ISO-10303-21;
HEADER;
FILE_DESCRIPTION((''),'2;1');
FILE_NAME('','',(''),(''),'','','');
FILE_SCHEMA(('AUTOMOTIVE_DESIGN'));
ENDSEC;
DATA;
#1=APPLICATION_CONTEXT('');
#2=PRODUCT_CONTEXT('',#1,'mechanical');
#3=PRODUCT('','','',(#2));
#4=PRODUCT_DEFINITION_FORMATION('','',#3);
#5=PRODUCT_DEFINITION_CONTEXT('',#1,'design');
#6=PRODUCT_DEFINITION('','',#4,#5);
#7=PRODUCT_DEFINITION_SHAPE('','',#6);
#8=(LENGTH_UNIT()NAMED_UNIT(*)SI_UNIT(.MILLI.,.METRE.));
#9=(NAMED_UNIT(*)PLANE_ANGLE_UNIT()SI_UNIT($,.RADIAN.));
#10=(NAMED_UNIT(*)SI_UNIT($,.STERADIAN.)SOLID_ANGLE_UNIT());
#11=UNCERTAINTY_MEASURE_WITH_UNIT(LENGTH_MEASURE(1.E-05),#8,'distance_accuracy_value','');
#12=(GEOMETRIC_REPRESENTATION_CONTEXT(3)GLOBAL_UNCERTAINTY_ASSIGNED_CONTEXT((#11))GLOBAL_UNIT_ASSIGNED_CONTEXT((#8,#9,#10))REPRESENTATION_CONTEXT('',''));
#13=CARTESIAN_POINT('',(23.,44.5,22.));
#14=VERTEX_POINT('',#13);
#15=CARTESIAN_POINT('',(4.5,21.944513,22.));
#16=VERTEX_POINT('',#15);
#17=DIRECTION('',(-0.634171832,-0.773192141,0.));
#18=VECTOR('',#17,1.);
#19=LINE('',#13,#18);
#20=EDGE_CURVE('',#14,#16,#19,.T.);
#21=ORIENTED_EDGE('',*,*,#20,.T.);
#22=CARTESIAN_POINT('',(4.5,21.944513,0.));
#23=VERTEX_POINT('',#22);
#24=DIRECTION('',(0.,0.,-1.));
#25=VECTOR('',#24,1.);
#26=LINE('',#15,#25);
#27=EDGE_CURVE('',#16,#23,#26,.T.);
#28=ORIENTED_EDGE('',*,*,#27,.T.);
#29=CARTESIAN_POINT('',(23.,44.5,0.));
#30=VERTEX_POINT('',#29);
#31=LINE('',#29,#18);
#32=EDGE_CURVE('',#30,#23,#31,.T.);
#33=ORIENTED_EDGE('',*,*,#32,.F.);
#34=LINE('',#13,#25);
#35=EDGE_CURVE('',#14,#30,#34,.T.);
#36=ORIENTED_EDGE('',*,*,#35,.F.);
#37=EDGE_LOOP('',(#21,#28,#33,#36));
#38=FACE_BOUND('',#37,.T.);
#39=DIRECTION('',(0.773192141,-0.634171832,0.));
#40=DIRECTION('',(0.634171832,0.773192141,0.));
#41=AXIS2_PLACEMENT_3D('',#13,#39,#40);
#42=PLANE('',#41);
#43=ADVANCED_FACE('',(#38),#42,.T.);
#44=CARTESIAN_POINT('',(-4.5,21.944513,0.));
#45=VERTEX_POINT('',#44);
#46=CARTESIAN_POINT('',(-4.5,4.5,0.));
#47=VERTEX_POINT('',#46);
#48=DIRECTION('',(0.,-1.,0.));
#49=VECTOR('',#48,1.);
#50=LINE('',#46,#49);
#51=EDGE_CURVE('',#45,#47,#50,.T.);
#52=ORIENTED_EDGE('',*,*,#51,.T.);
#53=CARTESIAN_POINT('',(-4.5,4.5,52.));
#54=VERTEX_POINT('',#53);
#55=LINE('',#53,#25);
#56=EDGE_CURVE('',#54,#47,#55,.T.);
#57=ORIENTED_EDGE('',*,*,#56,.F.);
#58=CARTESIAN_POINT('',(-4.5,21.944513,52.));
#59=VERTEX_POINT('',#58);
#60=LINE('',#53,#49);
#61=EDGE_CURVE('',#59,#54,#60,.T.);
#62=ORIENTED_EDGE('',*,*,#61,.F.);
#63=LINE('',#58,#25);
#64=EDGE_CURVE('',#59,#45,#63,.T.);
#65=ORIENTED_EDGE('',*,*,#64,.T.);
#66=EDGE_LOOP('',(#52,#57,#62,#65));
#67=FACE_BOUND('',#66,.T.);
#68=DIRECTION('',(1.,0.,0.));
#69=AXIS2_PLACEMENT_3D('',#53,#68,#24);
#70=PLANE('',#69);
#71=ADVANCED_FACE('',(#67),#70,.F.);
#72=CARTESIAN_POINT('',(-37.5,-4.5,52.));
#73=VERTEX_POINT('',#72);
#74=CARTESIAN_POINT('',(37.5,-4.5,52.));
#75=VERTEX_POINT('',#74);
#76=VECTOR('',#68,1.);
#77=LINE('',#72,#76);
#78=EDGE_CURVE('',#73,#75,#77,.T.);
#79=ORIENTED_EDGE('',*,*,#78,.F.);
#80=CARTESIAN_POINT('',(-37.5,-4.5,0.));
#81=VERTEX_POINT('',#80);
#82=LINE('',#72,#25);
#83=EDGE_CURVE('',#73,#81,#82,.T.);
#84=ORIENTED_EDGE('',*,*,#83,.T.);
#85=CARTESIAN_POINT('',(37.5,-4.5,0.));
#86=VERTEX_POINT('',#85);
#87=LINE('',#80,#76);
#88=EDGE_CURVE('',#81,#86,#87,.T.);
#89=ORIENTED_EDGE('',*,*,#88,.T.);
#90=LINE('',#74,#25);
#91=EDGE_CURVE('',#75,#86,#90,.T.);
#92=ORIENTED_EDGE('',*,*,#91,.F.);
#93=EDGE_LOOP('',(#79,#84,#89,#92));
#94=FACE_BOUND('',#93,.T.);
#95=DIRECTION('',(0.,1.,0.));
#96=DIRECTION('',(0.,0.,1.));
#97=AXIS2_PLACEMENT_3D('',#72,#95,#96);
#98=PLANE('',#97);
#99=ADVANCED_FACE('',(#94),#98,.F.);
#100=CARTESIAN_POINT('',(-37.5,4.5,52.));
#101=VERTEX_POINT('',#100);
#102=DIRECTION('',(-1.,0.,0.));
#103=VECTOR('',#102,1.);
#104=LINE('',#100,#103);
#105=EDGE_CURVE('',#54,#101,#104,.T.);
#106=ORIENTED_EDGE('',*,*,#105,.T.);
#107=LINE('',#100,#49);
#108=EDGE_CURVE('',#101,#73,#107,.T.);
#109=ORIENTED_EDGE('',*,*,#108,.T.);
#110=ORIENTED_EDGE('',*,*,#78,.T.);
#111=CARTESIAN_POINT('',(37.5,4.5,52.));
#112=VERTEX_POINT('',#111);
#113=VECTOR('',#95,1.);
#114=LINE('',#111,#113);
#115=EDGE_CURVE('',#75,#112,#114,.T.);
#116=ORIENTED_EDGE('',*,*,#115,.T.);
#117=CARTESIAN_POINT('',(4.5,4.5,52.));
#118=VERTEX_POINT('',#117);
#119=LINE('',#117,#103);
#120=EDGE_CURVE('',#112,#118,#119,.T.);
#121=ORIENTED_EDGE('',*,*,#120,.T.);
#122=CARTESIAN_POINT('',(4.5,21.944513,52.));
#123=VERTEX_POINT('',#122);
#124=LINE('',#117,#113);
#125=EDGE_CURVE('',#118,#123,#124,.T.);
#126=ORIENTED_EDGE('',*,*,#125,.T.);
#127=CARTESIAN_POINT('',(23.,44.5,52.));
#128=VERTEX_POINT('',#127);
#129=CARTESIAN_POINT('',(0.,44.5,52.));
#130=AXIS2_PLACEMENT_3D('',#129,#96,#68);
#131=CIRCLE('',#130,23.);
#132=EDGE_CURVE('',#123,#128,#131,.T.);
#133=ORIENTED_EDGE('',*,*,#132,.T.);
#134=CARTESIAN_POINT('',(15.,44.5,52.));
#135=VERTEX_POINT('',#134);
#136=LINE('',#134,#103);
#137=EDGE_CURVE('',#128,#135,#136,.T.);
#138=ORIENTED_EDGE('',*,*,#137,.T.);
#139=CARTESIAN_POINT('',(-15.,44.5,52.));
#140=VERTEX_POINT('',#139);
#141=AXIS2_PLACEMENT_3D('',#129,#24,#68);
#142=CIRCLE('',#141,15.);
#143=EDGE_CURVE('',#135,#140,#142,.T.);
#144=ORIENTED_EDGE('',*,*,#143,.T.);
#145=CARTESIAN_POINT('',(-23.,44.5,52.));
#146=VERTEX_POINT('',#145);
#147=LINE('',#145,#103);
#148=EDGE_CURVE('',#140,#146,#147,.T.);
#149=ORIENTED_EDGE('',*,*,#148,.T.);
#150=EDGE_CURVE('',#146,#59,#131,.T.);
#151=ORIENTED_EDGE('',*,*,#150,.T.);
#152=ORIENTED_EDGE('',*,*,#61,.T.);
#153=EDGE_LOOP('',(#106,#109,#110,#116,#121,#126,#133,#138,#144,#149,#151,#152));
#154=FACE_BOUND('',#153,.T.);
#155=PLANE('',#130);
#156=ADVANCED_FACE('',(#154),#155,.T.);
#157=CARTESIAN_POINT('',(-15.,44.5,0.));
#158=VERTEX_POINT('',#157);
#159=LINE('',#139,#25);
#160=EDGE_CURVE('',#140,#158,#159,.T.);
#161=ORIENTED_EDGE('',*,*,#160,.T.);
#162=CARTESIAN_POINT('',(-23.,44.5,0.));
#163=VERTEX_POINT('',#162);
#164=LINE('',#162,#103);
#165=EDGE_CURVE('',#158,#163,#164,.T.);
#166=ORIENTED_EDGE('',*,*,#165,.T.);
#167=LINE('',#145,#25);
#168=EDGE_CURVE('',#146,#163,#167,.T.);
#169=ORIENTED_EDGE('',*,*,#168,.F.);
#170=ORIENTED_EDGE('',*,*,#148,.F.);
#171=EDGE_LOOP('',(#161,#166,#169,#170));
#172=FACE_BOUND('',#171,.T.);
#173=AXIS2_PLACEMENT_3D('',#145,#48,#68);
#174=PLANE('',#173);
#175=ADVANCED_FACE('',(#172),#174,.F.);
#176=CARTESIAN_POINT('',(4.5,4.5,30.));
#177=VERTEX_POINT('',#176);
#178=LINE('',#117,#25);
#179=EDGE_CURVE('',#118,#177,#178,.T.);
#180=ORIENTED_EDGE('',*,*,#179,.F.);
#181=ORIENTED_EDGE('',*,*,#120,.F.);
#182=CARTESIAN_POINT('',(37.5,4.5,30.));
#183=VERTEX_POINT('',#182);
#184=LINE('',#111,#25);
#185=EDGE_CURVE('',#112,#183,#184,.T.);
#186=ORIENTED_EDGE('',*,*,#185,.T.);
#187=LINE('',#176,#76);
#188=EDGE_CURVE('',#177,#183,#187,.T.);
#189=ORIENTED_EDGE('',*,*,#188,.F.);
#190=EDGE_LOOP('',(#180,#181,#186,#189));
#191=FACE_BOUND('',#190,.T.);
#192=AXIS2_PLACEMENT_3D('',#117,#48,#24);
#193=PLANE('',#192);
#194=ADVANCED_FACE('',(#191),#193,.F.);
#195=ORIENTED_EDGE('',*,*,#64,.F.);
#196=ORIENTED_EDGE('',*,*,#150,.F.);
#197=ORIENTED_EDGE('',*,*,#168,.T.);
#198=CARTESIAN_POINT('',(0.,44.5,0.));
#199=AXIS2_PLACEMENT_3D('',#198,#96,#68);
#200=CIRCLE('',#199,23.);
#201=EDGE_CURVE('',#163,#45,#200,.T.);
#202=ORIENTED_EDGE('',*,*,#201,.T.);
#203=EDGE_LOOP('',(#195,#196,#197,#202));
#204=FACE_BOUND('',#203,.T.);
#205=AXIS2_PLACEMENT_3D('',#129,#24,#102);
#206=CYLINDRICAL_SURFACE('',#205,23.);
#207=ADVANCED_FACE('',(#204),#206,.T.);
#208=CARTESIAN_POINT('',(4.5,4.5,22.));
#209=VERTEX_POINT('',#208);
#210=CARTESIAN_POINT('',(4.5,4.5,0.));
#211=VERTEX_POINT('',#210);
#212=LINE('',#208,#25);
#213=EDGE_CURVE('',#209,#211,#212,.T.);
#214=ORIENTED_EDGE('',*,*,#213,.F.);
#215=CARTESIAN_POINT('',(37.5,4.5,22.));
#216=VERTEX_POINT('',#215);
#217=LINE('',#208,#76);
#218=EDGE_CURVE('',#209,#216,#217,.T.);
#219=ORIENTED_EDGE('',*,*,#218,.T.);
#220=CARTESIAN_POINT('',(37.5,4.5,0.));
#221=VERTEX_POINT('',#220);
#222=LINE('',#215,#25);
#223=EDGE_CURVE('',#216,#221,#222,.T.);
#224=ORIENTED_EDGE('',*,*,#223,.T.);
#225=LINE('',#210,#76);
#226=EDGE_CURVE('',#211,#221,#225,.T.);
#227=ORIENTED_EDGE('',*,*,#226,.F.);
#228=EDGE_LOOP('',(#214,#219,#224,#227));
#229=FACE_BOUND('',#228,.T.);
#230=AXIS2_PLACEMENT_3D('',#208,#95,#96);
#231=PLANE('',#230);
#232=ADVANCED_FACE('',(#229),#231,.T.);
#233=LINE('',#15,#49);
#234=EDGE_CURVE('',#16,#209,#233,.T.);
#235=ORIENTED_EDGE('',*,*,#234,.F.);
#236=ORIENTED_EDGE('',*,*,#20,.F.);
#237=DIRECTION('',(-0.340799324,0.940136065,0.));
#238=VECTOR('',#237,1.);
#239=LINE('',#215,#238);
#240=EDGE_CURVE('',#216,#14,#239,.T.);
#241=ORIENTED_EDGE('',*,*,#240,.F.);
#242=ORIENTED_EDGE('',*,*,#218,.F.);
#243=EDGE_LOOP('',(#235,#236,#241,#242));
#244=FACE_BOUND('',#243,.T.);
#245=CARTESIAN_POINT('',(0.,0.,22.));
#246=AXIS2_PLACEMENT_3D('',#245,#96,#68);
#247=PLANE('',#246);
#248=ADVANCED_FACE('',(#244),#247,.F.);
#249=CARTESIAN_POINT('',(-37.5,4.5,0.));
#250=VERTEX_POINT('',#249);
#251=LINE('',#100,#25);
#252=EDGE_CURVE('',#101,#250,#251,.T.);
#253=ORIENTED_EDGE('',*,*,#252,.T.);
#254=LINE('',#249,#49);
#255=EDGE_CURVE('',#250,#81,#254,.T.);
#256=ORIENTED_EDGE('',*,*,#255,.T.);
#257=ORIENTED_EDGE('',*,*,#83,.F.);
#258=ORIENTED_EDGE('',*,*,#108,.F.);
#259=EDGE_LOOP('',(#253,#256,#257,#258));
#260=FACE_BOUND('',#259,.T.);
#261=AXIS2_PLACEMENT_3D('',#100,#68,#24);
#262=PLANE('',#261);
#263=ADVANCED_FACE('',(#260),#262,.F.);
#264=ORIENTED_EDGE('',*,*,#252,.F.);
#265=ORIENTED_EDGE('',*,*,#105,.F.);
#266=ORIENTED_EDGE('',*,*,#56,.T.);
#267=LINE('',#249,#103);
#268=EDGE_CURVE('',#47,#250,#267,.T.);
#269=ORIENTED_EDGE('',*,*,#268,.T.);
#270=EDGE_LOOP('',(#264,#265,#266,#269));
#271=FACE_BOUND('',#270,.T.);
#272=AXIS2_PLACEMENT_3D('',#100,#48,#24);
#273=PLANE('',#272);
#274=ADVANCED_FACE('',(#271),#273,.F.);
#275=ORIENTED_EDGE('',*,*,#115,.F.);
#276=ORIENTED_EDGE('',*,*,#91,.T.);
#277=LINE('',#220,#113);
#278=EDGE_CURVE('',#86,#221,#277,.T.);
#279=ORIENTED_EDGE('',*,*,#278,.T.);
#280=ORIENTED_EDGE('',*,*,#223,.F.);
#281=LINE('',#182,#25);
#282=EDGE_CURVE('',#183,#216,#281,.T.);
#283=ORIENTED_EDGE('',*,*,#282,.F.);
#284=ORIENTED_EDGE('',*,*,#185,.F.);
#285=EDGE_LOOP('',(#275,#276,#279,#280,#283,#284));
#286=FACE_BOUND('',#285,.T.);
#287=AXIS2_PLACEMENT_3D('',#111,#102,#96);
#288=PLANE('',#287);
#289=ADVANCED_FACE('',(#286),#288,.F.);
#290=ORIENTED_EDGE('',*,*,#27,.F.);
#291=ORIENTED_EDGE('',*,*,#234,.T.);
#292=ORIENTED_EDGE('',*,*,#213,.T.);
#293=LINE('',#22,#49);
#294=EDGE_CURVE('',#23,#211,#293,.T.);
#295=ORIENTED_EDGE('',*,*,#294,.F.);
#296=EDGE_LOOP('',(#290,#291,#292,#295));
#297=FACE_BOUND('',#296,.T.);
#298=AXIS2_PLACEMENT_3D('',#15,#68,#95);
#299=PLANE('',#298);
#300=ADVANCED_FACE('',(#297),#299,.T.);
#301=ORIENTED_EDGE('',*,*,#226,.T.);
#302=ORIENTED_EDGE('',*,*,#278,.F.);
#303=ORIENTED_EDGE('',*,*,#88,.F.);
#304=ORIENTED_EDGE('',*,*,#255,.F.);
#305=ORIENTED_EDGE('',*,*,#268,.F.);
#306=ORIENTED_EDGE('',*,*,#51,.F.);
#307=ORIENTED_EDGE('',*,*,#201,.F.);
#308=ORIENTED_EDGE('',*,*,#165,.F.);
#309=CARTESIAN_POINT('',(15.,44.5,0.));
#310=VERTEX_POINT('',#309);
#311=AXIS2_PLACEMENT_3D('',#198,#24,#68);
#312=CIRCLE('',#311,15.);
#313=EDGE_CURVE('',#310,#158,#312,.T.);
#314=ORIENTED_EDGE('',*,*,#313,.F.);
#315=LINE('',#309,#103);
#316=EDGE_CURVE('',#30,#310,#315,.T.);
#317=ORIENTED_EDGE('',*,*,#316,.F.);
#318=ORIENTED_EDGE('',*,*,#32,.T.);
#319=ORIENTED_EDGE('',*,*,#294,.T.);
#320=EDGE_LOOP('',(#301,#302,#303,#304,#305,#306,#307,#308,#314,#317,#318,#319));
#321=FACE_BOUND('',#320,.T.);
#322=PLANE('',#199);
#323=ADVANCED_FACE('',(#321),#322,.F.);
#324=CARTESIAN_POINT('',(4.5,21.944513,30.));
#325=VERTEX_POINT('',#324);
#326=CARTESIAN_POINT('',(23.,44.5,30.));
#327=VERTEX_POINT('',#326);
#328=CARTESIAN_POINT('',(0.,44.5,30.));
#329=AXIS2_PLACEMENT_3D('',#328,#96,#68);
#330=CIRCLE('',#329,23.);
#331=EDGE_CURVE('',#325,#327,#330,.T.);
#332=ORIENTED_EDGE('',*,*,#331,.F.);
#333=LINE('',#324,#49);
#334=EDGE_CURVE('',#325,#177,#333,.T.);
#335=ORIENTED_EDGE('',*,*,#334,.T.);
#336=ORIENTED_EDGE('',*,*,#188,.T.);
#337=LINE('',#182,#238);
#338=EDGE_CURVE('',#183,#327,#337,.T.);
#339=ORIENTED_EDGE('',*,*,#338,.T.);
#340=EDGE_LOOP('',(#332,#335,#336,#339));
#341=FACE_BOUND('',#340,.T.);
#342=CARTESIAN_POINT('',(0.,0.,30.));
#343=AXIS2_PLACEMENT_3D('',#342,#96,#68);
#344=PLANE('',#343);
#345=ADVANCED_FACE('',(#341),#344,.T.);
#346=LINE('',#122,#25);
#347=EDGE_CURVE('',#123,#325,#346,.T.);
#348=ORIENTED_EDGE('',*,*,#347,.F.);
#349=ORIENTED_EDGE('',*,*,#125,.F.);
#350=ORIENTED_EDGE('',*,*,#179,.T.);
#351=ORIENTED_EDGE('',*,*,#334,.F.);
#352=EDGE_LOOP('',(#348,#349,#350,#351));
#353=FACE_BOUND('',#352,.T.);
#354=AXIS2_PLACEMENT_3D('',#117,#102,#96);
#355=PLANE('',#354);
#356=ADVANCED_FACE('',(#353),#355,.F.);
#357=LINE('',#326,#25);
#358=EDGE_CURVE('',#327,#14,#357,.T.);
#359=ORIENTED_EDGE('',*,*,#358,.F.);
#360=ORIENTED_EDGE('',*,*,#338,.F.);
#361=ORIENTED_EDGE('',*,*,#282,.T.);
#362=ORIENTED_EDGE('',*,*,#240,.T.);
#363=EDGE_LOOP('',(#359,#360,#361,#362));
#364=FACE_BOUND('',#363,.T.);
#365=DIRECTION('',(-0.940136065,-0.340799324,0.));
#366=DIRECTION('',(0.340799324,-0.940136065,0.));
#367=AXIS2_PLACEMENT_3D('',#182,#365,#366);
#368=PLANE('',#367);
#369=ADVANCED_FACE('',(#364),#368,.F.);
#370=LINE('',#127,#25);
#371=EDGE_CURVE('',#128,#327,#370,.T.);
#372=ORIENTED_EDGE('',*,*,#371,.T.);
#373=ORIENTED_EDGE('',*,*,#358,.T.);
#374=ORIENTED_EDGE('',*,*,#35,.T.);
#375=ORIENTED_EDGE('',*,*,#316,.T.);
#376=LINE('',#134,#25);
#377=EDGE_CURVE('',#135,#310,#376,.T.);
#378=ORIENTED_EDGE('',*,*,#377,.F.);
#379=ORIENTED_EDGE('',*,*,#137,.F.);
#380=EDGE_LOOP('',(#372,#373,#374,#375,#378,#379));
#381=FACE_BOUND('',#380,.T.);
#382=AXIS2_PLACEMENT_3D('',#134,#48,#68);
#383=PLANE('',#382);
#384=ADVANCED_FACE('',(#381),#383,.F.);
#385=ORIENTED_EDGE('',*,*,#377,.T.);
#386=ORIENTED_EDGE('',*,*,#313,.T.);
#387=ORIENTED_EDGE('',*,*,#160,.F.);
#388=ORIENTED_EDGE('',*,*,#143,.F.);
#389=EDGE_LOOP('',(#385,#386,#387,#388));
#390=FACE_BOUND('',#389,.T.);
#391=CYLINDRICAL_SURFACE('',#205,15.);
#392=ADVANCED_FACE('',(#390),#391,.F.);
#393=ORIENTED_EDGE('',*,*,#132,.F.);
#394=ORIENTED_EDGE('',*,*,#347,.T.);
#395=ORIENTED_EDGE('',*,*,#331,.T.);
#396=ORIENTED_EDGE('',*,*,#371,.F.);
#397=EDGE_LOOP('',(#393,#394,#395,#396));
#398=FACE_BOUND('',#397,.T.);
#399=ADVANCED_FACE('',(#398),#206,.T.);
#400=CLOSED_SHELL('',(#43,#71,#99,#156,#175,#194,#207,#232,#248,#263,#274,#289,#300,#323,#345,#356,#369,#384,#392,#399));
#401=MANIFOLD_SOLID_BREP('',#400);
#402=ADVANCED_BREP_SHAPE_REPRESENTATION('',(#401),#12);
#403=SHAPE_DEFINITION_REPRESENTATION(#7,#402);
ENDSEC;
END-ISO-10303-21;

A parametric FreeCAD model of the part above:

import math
import FreeCAD as App
import Part
import Sketcher
from FreeCAD import Vector


def add_polygon(sketch, points):
    """Adds a closed chain of lines whose ends are joined by coincident constraints."""
    first, n = sketch.GeometryCount, len(points)
    for a, b in zip(points, points[1:] + points[:1]):
        sketch.addGeometry(Part.LineSegment(App.Vector(*a, 0), App.Vector(*b, 0)), False)
    for i in range(n):
        sketch.addConstraint(Sketcher.Constraint("Coincident", first + i, 2, first + (i + 1) % n, 1))

doc = App.newDocument("Part")
body = doc.addObject("PartDesign::Body", "Body")

# Sketch on XY plane
sketch1 = doc.addObject("Sketcher::SketchObject", "Sketch")
body.addObject(sketch1)
sketch1.AttachmentSupport = (doc.XY_Plane, [""])
sketch1.MapMode = "FlatFace"
sketch1.addGeometry([
    Part.LineSegment(Vector(-4, 4, 0), Vector(-38, 4, 0)),  # 0
    Part.LineSegment(Vector(-38, 4, 0), Vector(-38, -4, 0)),  # 1
    Part.LineSegment(Vector(-38, -4, 0), Vector(38, -4, 0)),  # 2
    Part.LineSegment(Vector(38, -4, 0), Vector(38, 4, 0)),  # 3
    Part.LineSegment(Vector(38, 4, 0), Vector(4, 4, 0)),  # 4
    Part.LineSegment(Vector(4, 4, 0), Vector(4, 22, 0)),  # 5
    Part.ArcOfCircle(Part.Circle(Vector(0, 44, 0), Vector(0, 0, 1), 23), math.radians(-79), math.radians(0)),  # 6
    Part.LineSegment(Vector(23, 44, 0), Vector(15, 44, 0)),  # 7
    Part.ArcOfCircle(Part.Circle(Vector(0, 44, 0), Vector(0, 0, 1), 15), math.radians(180), math.radians(360)),  # 8
    Part.LineSegment(Vector(-15, 44, 0), Vector(-23, 44, 0)),  # 9
    Part.ArcOfCircle(Part.Circle(Vector(0, 44, 0), Vector(0, 0, 1), 23), math.radians(180), math.radians(259)),  # 10
    Part.LineSegment(Vector(-4, 22, 0), Vector(-4, 4, 0)),  # 11
], False)
sketch1.addConstraint([
    Sketcher.Constraint("Coincident", 0, 2, 1, 1),
    Sketcher.Constraint("Coincident", 1, 2, 2, 1),
    Sketcher.Constraint("Coincident", 2, 2, 3, 1),
    Sketcher.Constraint("Coincident", 3, 2, 4, 1),
    Sketcher.Constraint("Coincident", 4, 2, 5, 1),
    Sketcher.Constraint("Coincident", 5, 2, 6, 1),
    Sketcher.Constraint("Coincident", 6, 2, 7, 1),
    Sketcher.Constraint("Coincident", 7, 2, 8, 2),
    Sketcher.Constraint("Coincident", 8, 1, 9, 1),
    Sketcher.Constraint("Coincident", 9, 2, 10, 1),
    Sketcher.Constraint("Coincident", 10, 2, 11, 1),
    Sketcher.Constraint("Coincident", 11, 2, 0, 1),
    Sketcher.Constraint("Horizontal", 0),
    Sketcher.Constraint("Vertical", 1),
    Sketcher.Constraint("Horizontal", 2),
    Sketcher.Constraint("Vertical", 3),
    Sketcher.Constraint("Horizontal", 4),
    Sketcher.Constraint("Vertical", 5),
    Sketcher.Constraint("Horizontal", 7),
    Sketcher.Constraint("Horizontal", 9),
    Sketcher.Constraint("Vertical", 11),
    Sketcher.Constraint("Coincident", 8, 3, 6, 3),
    Sketcher.Constraint("Coincident", 10, 3, 6, 3),
    Sketcher.Constraint("Equal", 6, 10),
    Sketcher.Constraint("Symmetric", 0, 2, 2, 2, -1, 1),
    Sketcher.Constraint("Symmetric", 7, 2, 8, 1, -2),
    Sketcher.Constraint("Symmetric", 4, 2, 11, 2, -2),
    Sketcher.Constraint("Horizontal", 10, 3, 6, 2),
    Sketcher.Constraint("Radius", 6, 23.0),
    Sketcher.Constraint("Radius", 8, 15.0),
    Sketcher.Constraint("DistanceX", 0, 2, 0, 1, 33.0),
    Sketcher.Constraint("DistanceX", 2, 1, 2, 2, 75.0),
    Sketcher.Constraint("DistanceY", 1, 2, 1, 1, 9.0),
    Sketcher.Constraint("DistanceY", 0, 2, 10, 3, 40.0),
])
pad1 = doc.addObject("PartDesign::Pad", "Pad")
body.addObject(pad1)
pad1.Profile = sketch1
pad1.Length = 52

# Sketch on XY plane
sketch2 = doc.addObject("Sketcher::SketchObject", "Sketch001")
body.addObject(sketch2)
sketch2.AttachmentSupport = (doc.XY_Plane, [""])
sketch2.MapMode = "FlatFace"
add_polygon(sketch2, [(4, 4), (38, 4), (23, 44), (4, 22)])  # lines 0-3
sketch2.addConstraint([
    Sketcher.Constraint("Horizontal", 0),
    Sketcher.Constraint("Vertical", 3),
    Sketcher.Constraint("DistanceX", 0, 1, 0, 2, 33.0),
    Sketcher.Constraint("DistanceX", -1, 1, 1, 2, 23.0),
    Sketcher.Constraint("DistanceY", 0, 2, 1, 2, 40.0),
    Sketcher.Constraint("DistanceX", -1, 1, 0, 2, 37.5),
    Sketcher.Constraint("DistanceY", -1, 1, 0, 2, 4.5),
    Sketcher.Constraint("DistanceY", 3, 2, 3, 1, 17.444513),
])
pad2 = doc.addObject("PartDesign::Pad", "Pad001")
body.addObject(pad2)
pad2.Profile = sketch2
pad2.Length = 30

# Sketch on XY plane
sketch3 = doc.addObject("Sketcher::SketchObject", "Sketch002")
body.addObject(sketch3)
sketch3.AttachmentSupport = (doc.XY_Plane, [""])
sketch3.MapMode = "FlatFace"
add_polygon(sketch3, [(4, 4), (38, 4), (23, 44), (4, 22)])  # lines 0-3
sketch3.addConstraint([
    Sketcher.Constraint("Horizontal", 0),
    Sketcher.Constraint("Vertical", 3),
    Sketcher.Constraint("DistanceX", 0, 1, 0, 2, 33.0),
    Sketcher.Constraint("DistanceX", -1, 1, 1, 2, 23.0),
    Sketcher.Constraint("DistanceY", 0, 2, 1, 2, 40.0),
    Sketcher.Constraint("DistanceX", -1, 1, 0, 2, 37.5),
    Sketcher.Constraint("DistanceY", -1, 1, 0, 2, 4.5),
    Sketcher.Constraint("DistanceY", 3, 2, 3, 1, 17.444513),
])
pocket1 = doc.addObject("PartDesign::Pocket", "Pocket")
body.addObject(pocket1)
pocket1.Profile = sketch3
pocket1.Length = 22
pocket1.Reversed = True

doc.recompute()
